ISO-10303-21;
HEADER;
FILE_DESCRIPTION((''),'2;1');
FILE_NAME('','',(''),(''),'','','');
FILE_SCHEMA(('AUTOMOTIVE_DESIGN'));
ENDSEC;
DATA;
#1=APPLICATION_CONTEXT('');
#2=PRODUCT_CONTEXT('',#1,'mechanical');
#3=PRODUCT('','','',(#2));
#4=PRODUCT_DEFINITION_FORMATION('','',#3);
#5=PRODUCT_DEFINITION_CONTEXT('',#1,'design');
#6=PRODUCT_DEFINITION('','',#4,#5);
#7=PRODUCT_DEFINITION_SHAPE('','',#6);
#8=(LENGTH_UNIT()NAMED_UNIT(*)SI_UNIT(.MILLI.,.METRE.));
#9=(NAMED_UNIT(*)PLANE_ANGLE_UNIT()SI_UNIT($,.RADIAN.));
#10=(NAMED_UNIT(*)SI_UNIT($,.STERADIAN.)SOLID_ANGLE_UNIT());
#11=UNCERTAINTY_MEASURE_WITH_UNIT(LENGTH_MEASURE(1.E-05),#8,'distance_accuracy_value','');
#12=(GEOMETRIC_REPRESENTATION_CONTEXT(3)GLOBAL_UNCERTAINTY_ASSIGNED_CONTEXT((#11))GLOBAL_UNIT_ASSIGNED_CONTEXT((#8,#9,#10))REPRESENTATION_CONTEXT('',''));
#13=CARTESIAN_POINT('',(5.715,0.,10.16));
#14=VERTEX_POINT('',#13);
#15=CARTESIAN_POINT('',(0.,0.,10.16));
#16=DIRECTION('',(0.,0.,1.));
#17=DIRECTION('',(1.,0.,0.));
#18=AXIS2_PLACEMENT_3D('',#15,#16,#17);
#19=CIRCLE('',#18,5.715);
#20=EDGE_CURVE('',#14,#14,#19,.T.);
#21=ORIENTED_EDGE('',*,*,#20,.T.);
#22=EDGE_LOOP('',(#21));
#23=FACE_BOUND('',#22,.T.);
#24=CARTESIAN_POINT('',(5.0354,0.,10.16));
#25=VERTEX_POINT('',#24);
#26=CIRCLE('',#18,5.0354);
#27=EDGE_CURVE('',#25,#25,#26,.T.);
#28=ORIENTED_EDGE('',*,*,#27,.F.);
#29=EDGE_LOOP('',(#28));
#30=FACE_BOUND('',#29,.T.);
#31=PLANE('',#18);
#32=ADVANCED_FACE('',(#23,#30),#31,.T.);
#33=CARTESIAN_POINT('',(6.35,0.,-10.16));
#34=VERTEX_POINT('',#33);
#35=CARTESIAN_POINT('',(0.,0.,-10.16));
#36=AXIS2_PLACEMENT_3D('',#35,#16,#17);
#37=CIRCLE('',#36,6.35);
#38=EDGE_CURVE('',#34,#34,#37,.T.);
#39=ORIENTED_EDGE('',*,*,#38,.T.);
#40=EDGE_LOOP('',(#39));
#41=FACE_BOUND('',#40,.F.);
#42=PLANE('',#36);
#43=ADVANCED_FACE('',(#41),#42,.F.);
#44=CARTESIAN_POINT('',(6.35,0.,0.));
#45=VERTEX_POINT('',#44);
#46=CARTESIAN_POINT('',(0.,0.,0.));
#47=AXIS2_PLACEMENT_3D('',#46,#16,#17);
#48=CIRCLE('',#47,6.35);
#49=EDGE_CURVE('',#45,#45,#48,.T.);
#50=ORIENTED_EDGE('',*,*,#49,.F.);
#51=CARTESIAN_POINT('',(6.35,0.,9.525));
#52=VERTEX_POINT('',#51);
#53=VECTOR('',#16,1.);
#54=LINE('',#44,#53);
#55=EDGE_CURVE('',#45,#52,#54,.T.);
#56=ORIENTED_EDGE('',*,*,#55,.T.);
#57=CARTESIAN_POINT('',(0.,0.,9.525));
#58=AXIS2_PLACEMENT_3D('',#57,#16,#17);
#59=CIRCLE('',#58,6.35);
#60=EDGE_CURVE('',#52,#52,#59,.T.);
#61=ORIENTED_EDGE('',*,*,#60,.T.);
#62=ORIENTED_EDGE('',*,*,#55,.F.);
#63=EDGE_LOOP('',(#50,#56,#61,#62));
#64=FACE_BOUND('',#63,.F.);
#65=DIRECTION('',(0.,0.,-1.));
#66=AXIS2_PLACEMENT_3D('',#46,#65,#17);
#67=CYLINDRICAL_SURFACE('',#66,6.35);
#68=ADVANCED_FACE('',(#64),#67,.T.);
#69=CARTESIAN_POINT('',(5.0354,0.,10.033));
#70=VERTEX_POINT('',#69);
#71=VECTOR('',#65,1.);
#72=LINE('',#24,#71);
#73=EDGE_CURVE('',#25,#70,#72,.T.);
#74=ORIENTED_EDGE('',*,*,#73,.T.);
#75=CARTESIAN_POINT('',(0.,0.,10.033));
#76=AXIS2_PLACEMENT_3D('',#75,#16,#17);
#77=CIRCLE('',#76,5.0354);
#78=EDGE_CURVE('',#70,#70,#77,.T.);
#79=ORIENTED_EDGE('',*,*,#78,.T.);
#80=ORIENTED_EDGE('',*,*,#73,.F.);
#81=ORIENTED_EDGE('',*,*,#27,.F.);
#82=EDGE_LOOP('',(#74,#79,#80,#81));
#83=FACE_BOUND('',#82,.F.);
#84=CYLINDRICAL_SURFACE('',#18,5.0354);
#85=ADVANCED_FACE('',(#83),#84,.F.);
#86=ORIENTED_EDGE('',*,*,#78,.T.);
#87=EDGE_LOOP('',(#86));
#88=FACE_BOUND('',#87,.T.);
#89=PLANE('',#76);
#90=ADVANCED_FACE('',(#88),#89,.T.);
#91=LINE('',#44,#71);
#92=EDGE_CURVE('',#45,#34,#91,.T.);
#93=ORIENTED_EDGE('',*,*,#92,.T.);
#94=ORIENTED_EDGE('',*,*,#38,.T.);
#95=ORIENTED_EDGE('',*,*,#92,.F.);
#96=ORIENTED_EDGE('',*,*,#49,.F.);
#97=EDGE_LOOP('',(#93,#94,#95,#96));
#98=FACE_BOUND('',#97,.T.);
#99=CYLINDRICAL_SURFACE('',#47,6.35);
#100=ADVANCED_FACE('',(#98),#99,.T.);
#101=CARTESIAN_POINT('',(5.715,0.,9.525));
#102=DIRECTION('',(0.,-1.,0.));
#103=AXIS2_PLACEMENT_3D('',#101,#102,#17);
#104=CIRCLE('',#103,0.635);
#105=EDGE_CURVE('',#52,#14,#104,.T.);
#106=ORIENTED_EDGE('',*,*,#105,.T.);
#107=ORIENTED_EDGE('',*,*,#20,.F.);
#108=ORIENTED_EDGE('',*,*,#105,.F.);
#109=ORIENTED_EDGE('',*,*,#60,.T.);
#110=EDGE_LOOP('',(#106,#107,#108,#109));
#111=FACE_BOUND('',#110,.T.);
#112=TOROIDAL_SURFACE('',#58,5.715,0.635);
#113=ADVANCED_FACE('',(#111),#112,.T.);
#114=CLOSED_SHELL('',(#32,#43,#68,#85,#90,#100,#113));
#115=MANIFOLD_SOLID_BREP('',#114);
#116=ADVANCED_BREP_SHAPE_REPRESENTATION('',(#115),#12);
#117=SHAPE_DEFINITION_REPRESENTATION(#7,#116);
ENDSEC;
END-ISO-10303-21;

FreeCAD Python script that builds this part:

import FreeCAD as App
import Part
import Sketcher
Q = App.Units.Quantity


def edges_at(feature, points):
    """Names of the edges that pass closest to the given points."""
    edges = feature.Shape.Edges
    near = lambda p: min(range(len(edges)), key=lambda i: edges[i].distToShape(Part.Vertex(*p))[0])
    return sorted({f"Edge{near(p) + 1}" for p in points})

doc = App.newDocument("Part")
body = doc.addObject("PartDesign::Body", "Body")

sketch1 = doc.addObject("Sketcher::SketchObject", "Sketch")
body.addObject(sketch1)
sketch1.AttachmentSupport = (doc.XY_Plane, [""])
sketch1.MapMode = "FlatFace"
sketch1.addGeometry(Part.Circle(App.Vector(0, 0, 0), App.Vector(0, 0, 1), 6), False)
sketch1.addConstraint([
    Sketcher.Constraint("Coincident", 0, 3, -1, 1),
    Sketcher.Constraint("Diameter", 0, Q("0.5 in")),
])
pad1 = doc.addObject("PartDesign::Pad", "Pad")
body.addObject(pad1)
pad1.Profile = sketch1
pad1.Length = Q("0.8 in")
pad1.Midplane = True
doc.recompute()

fillet = doc.addObject("PartDesign::Fillet", "Fillet")
body.addObject(fillet)
fillet.Base = (pad1, edges_at(pad1, [(-6.35, 0, 10.16)]))
fillet.Radius = Q("0.025 in")

sketch2 = doc.addObject("Sketcher::SketchObject", "Sketch001")
body.addObject(sketch2)
sketch2.AttachmentSupport = (doc.XY_Plane, [""])
sketch2.MapMode = "FlatFace"
sketch2.AttachmentOffset = App.Placement(App.Vector(0, 0, 0.4 * 25.4), App.Rotation())
sketch2.addGeometry(Part.Circle(App.Vector(0, 0, 0), App.Vector(0, 0, 1), 5), False)
sketch2.addConstraint([
    Sketcher.Constraint("Coincident", 0, 3, -1, 1),
    Sketcher.Constraint("Diameter", 0, Q("0.3965 in")),
])
pocket1 = doc.addObject("PartDesign::Pocket", "Pocket")
body.addObject(pocket1)
pocket1.Profile = sketch2
pocket1.Length = Q("0.005 in")

doc.recompute()
